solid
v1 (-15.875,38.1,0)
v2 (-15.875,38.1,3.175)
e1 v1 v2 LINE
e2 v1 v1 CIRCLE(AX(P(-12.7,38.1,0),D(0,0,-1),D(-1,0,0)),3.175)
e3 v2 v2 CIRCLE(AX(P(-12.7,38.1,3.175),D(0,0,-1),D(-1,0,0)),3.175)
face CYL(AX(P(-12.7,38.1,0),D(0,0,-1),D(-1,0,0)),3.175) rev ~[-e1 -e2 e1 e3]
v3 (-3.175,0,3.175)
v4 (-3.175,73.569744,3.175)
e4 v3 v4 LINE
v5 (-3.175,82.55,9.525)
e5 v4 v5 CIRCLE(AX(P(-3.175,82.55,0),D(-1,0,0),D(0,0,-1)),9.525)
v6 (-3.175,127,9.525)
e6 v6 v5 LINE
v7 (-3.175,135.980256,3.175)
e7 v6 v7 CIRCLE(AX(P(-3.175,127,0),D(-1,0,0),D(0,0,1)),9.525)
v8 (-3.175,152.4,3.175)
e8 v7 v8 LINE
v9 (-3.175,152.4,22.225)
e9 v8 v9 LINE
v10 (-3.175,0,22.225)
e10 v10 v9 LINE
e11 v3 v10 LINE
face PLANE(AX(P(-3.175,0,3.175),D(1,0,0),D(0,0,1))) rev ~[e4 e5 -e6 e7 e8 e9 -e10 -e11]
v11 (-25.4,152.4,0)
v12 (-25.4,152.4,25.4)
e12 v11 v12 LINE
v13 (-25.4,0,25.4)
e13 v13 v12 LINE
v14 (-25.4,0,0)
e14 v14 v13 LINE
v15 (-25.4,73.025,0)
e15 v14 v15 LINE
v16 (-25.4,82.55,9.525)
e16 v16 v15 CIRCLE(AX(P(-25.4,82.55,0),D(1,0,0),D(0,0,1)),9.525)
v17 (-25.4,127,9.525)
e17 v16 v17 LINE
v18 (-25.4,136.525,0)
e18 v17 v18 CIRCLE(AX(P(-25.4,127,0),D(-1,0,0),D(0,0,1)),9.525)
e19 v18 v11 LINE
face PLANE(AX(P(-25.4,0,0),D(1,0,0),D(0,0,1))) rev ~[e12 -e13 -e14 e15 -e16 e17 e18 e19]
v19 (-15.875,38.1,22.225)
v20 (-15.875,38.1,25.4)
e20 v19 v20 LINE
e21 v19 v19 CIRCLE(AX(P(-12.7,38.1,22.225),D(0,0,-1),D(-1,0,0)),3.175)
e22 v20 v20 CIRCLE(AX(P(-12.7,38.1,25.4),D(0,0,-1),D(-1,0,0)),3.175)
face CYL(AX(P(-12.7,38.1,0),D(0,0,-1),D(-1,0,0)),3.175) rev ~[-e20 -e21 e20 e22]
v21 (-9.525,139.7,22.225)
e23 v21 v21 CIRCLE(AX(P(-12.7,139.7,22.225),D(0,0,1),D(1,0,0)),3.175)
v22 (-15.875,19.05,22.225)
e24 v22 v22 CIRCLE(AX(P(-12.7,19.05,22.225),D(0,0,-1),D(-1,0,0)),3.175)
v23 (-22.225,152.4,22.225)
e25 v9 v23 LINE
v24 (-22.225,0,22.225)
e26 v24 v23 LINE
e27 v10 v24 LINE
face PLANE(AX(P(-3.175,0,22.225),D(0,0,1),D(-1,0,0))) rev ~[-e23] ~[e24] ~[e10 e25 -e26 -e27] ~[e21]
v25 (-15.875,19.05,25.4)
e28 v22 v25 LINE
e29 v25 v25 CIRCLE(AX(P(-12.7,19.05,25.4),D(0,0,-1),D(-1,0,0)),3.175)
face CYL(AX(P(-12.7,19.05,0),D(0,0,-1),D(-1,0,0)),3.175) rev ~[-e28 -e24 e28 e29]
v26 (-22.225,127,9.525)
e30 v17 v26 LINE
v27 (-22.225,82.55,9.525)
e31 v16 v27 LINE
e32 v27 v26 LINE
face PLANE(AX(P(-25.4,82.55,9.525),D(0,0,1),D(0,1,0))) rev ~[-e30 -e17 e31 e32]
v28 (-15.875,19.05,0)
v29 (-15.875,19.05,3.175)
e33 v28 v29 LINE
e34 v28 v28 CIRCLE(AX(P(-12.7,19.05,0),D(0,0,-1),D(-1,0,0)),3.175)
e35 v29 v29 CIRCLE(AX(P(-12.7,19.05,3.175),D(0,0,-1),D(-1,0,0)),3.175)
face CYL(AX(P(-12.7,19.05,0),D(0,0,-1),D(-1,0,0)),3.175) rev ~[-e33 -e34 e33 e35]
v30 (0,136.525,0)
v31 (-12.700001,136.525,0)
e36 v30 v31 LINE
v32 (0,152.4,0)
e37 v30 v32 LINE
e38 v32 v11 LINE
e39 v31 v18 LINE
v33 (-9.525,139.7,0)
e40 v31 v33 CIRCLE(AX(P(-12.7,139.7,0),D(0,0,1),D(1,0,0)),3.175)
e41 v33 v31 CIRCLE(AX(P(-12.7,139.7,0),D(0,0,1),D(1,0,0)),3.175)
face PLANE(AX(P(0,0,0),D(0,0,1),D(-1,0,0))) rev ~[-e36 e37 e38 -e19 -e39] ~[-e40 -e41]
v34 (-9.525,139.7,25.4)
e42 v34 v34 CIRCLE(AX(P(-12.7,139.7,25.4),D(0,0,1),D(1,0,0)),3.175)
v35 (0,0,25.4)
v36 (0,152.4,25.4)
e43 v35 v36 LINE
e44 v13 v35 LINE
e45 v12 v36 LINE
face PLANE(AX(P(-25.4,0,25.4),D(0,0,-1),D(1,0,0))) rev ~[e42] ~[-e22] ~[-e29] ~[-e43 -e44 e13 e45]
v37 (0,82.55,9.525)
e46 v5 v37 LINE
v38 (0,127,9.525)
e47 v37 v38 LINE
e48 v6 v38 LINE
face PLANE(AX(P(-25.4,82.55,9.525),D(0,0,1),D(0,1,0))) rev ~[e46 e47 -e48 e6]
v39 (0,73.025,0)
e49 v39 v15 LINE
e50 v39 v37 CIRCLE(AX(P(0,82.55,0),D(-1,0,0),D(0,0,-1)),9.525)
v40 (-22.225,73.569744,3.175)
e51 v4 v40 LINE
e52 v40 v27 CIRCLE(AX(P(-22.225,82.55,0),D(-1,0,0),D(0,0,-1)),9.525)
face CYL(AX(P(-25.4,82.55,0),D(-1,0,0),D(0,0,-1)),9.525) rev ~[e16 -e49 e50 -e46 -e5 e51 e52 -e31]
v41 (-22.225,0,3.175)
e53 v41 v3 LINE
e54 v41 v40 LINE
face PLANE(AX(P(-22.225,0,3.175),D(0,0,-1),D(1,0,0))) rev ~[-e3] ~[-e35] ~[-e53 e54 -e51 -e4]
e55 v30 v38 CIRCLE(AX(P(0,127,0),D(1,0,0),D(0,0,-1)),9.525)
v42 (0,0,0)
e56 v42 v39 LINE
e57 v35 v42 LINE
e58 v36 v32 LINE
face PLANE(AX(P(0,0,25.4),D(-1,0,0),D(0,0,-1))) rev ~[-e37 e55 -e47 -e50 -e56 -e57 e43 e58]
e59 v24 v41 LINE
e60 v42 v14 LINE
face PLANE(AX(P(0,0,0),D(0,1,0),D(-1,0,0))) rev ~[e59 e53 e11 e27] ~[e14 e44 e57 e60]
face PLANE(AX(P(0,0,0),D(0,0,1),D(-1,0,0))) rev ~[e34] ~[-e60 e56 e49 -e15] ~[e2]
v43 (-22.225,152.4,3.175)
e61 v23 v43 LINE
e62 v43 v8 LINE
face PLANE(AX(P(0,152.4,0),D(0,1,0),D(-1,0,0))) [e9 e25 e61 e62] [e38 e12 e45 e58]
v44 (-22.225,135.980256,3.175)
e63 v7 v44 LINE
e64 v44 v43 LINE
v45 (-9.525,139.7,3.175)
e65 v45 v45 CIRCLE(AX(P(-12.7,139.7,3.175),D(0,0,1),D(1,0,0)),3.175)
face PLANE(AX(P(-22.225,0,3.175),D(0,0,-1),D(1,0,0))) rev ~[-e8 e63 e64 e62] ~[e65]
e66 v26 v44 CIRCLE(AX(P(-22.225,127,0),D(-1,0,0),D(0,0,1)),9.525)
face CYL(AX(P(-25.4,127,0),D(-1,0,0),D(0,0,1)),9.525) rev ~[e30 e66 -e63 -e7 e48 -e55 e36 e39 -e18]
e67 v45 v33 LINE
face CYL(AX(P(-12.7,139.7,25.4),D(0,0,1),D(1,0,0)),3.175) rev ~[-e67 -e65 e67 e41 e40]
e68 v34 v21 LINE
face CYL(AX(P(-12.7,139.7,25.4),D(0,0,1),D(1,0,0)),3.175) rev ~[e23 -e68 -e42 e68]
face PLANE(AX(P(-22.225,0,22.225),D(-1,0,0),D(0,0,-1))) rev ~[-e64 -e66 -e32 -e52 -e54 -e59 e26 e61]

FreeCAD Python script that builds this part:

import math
import FreeCAD as App
import Part
import Sketcher
Q = App.Units.Quantity


def add_polygon(sketch, points):
    """Adds a closed chain of lines whose ends are joined by coincident constraints."""
    first, n = sketch.GeometryCount, len(points)
    for a, b in zip(points, points[1:] + points[:1]):
        sketch.addGeometry(Part.LineSegment(App.Vector(*a, 0), App.Vector(*b, 0)), False)
    for i in range(n):
        sketch.addConstraint(Sketcher.Constraint("Coincident", first + i, 2, first + (i + 1) % n, 1))

doc = App.newDocument("Part")
body = doc.addObject("PartDesign::Body", "Body")

# Sketch on XZ plane
sketch1 = doc.addObject("Sketcher::SketchObject", "Sketch")
body.addObject(sketch1)
sketch1.AttachmentSupport = (doc.XZ_Plane, [""])
sketch1.MapMode = "FlatFace"
add_polygon(sketch1, [(0, 25.4), (0, 0), (-25.4, 0), (-25.4, 25.4)])  # lines 0-3
add_polygon(sketch1, [(-3.175, 3.175), (-3.175, 22.225), (-22.225, 22.225), (-22.225, 3.175)])  # lines 4-7
sketch1.addConstraint(Sketcher.Constraint("Vertical", 0))
sketch1.addConstraint(Sketcher.Constraint("Horizontal", 1))
sketch1.addConstraint(Sketcher.Constraint("Vertical", 2))
sketch1.addConstraint(Sketcher.Constraint("Horizontal", 3))
sketch1.addConstraint(Sketcher.Constraint("Vertical", 4))
sketch1.addConstraint(Sketcher.Constraint("Horizontal", 5))
sketch1.addConstraint(Sketcher.Constraint("Vertical", 6))
sketch1.addConstraint(Sketcher.Constraint("Horizontal", 7))
sketch1.addConstraint(Sketcher.Constraint("Coincident", 0, 2, -1, 1))
sketch1.addConstraint(Sketcher.Constraint("Equal", 3, 0))
sketch1.addConstraint(Sketcher.Constraint("Equal", 7, 4))
sketch1.addConstraint(Sketcher.Constraint("DistanceX", 1, 2, 1, 1, Q("1 in")))
sketch1.addConstraint(Sketcher.Constraint("DistanceX", 4, 2, -1, 1, Q("0.125 in")))
sketch1.addConstraint(Sketcher.Constraint("DistanceY", -1, 1, 6, 2, Q("0.125 in")))
sketch1.addConstraint(Sketcher.Constraint("DistanceY", 4, 2, 3, 2, Q("0.125 in")))
pad1 = doc.addObject("PartDesign::Pad", "Pad")
body.addObject(pad1)
pad1.Profile = sketch1
pad1.Length = Q("6 in")
pad1.Reversed = True

# Sketch on XY plane
sketch2 = doc.addObject("Sketcher::SketchObject", "Sketch001")
body.addObject(sketch2)
sketch2.AttachmentSupport = (doc.XY_Plane, [""])
sketch2.MapMode = "FlatFace"
sketch2.AttachmentOffset = App.Placement(App.Vector(0, 0, 1 * 25.4), App.Rotation())
sketch2.addGeometry(Part.Circle(App.Vector(-12.7, 139.7, 0), App.Vector(0, 0, 1), 3.175), False)
sketch2.addConstraint(Sketcher.Constraint("Diameter", 0, Q("0.25 in")))
sketch2.addConstraint(Sketcher.Constraint("DistanceX", 0, 3, -1, 1, Q("0.5 in")))
sketch2.addConstraint(Sketcher.Constraint("DistanceY", -1, 1, 0, 3, Q("5.5 in")))
pocket1 = doc.addObject("PartDesign::Pocket", "Pocket")
body.addObject(pocket1)
pocket1.Profile = sketch2
pocket1.Length = Q("6 in")

# Sketch on YZ plane
sketch3 = doc.addObject("Sketcher::SketchObject", "Sketch002")
body.addObject(sketch3)
sketch3.AttachmentSupport = (doc.YZ_Plane, [""])
sketch3.MapMode = "FlatFace"
sketch3.AttachmentOffset = App.Placement(App.Vector(0, 0, -1 * 25.4), App.Rotation())
sketch3.addGeometry(Part.ArcOfCircle(Part.Circle(App.Vector(82.55, 0, 0), App.Vector(0, 0, 1), 9.525), math.radians(90), math.radians(270)), False)
sketch3.addGeometry(Part.LineSegment(App.Vector(82.55, 9.525, 0), App.Vector(127, 9.525, 0)), False)
sketch3.addGeometry(Part.ArcOfCircle(Part.Circle(App.Vector(127, 0, 0), App.Vector(0, 0, 1), 9.525), math.radians(-90), math.radians(90)), False)
sketch3.addGeometry(Part.LineSegment(App.Vector(127, -9.525, 0), App.Vector(82.55, -9.525, 0)), False)
sketch3.addConstraint(Sketcher.Constraint("Tangent", 0, 1, 1, 1))
sketch3.addConstraint(Sketcher.Constraint("Tangent", 1, 2, 2, 2))
sketch3.addConstraint(Sketcher.Constraint("Tangent", 2, 1, 3, 1))
sketch3.addConstraint(Sketcher.Constraint("Tangent", 3, 2, 0, 2))
sketch3.addConstraint(Sketcher.Constraint("Horizontal", 1))
sketch3.addConstraint(Sketcher.Constraint("Horizontal", 3))
sketch3.addConstraint(Sketcher.Constraint("PointOnObject", 0, 3, -1))
sketch3.addConstraint(Sketcher.Constraint("Radius", 0, Q("0.375 in")))
sketch3.addConstraint(Sketcher.Constraint("DistanceX", 1, 1, 1, 2, Q("1.75 in")))
sketch3.addConstraint(Sketcher.Constraint("DistanceX", -1, 1, 0, 3, Q("3.25 in")))
pocket2 = doc.addObject("PartDesign::Pocket", "Pocket001")
body.addObject(pocket2)
pocket2.Profile = sketch3
pocket2.Length = Q("1 in")
pocket2.Reversed = True

# Sketch on XY plane
sketch4 = doc.addObject("Sketcher::SketchObject", "Sketch003")
body.addObject(sketch4)
sketch4.AttachmentSupport = (doc.XY_Plane, [""])
sketch4.MapMode = "FlatFace"
sketch4.addGeometry(Part.Circle(App.Vector(-12.7, 38.1, 0), App.Vector(0, 0, 1), 3.175), False)
sketch4.addGeometry(Part.Circle(App.Vector(-12.7, 19.05, 0), App.Vector(0, 0, 1), 3.175), False)
sketch4.addConstraint(Sketcher.Constraint("Equal", 0, 1))
sketch4.addConstraint(Sketcher.Constraint("Vertical", 0, 3, 1, 3))
sketch4.addConstraint(Sketcher.Constraint("Diameter", 0, Q("0.25 in")))
sketch4.addConstraint(Sketcher.Constraint("DistanceX", 0, 3, -1, 1, Q("0.5 in")))
sketch4.addConstraint(Sketcher.Constraint("DistanceY", -1, 1, 1, 3, Q("0.75 in")))
sketch4.addConstraint(Sketcher.Constraint("DistanceY", 1, 3, 0, 3, Q("0.75 in")))
pocket3 = doc.addObject("PartDesign::Pocket", "Pocket002")
body.addObject(pocket3)
pocket3.Profile = sketch4
pocket3.Length = Q("1 in")
pocket3.Reversed = True

doc.recompute()
